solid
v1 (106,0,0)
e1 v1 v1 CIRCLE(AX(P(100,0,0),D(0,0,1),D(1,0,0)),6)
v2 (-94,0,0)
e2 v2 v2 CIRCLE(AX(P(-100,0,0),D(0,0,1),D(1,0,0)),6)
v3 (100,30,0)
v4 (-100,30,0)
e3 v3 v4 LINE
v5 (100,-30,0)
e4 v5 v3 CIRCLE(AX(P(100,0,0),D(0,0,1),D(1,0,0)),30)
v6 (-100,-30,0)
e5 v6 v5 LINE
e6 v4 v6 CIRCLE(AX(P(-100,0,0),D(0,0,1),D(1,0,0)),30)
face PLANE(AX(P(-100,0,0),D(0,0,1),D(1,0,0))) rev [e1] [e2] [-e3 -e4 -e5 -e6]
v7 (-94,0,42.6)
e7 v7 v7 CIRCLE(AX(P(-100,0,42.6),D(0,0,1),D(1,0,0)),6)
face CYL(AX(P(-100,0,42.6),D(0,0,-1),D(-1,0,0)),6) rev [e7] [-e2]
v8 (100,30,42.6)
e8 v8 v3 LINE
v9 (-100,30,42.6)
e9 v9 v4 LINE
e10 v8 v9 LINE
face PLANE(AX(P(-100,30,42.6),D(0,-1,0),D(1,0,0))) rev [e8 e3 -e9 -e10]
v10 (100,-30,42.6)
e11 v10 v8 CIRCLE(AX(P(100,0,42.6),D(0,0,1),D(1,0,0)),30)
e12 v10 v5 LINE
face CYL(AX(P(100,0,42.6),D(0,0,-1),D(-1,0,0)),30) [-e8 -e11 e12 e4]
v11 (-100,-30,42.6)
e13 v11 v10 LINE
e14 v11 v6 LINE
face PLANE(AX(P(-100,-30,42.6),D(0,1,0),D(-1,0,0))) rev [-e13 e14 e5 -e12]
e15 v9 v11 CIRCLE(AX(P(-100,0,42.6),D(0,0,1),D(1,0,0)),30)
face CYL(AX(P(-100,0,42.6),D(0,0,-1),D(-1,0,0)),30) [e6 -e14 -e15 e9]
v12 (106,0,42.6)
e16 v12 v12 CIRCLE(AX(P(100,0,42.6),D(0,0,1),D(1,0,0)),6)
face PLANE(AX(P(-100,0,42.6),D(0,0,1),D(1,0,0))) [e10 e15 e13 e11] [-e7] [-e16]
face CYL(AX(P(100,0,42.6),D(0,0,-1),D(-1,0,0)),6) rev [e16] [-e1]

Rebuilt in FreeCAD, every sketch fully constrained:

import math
import FreeCAD as App
import Part
import Sketcher
Q = App.Units.Quantity

doc = App.newDocument("Part")
body = doc.addObject("PartDesign::Body", "Body")

sketch1 = body.newObject("Sketcher::SketchObject", "Sketch")
sketch1.AttachmentSupport = (doc.getObject("XY_Plane"), [""])
sketch1.MapMode = "FlatFace"
sketch1.addGeometry(Part.LineSegment(App.Vector(100, 30, 0), App.Vector(-100, 30, 0)), False)
sketch1.addGeometry(Part.ArcOfCircle(Part.Circle(App.Vector(-100, 0, 0), App.Vector(0, 0, 1), 30), math.radians(90), math.radians(270)), False)
sketch1.addGeometry(Part.LineSegment(App.Vector(-100, -30, 0), App.Vector(100, -30, 0)), False)
sketch1.addGeometry(Part.ArcOfCircle(Part.Circle(App.Vector(100, 0, 0), App.Vector(0, 0, 1), 30), math.radians(-90), math.radians(90)), False)
sketch1.addGeometry(Part.Circle(App.Vector(100, 0, 0), App.Vector(0, 0, 1), 6), False)
sketch1.addGeometry(Part.Circle(App.Vector(-100, 0, 0), App.Vector(0, 0, 1), 6), False)
sketch1.addConstraint(Sketcher.Constraint("Tangent", 0, 2, 1, 1))
sketch1.addConstraint(Sketcher.Constraint("Tangent", 1, 2, 2, 1))
sketch1.addConstraint(Sketcher.Constraint("Tangent", 2, 2, 3, 1))
sketch1.addConstraint(Sketcher.Constraint("Tangent", 3, 2, 0, 1))
sketch1.addConstraint(Sketcher.Constraint("Horizontal", 0))
sketch1.addConstraint(Sketcher.Constraint("Horizontal", 2))
sketch1.addConstraint(Sketcher.Constraint("Coincident", 4, 3, 3, 3))
sketch1.addConstraint(Sketcher.Constraint("Coincident", 5, 3, 1, 3))
sketch1.addConstraint(Sketcher.Constraint("Equal", 4, 5))
sketch1.addConstraint(Sketcher.Constraint("Symmetric", 1, 3, 3, 3, -1, 1))
sketch1.addConstraint(Sketcher.Constraint("Diameter", 4, Q("12 mm")))
sketch1.addConstraint(Sketcher.Constraint("Radius", 1, Q("30 mm")))
sketch1.addConstraint(Sketcher.Constraint("DistanceX", 0, 2, 0, 1, Q("200 mm")))
pad1 = body.newObject("PartDesign::Pad", "Pad")
pad1.Profile = sketch1
pad1.Length = 42.6

doc.recompute()
